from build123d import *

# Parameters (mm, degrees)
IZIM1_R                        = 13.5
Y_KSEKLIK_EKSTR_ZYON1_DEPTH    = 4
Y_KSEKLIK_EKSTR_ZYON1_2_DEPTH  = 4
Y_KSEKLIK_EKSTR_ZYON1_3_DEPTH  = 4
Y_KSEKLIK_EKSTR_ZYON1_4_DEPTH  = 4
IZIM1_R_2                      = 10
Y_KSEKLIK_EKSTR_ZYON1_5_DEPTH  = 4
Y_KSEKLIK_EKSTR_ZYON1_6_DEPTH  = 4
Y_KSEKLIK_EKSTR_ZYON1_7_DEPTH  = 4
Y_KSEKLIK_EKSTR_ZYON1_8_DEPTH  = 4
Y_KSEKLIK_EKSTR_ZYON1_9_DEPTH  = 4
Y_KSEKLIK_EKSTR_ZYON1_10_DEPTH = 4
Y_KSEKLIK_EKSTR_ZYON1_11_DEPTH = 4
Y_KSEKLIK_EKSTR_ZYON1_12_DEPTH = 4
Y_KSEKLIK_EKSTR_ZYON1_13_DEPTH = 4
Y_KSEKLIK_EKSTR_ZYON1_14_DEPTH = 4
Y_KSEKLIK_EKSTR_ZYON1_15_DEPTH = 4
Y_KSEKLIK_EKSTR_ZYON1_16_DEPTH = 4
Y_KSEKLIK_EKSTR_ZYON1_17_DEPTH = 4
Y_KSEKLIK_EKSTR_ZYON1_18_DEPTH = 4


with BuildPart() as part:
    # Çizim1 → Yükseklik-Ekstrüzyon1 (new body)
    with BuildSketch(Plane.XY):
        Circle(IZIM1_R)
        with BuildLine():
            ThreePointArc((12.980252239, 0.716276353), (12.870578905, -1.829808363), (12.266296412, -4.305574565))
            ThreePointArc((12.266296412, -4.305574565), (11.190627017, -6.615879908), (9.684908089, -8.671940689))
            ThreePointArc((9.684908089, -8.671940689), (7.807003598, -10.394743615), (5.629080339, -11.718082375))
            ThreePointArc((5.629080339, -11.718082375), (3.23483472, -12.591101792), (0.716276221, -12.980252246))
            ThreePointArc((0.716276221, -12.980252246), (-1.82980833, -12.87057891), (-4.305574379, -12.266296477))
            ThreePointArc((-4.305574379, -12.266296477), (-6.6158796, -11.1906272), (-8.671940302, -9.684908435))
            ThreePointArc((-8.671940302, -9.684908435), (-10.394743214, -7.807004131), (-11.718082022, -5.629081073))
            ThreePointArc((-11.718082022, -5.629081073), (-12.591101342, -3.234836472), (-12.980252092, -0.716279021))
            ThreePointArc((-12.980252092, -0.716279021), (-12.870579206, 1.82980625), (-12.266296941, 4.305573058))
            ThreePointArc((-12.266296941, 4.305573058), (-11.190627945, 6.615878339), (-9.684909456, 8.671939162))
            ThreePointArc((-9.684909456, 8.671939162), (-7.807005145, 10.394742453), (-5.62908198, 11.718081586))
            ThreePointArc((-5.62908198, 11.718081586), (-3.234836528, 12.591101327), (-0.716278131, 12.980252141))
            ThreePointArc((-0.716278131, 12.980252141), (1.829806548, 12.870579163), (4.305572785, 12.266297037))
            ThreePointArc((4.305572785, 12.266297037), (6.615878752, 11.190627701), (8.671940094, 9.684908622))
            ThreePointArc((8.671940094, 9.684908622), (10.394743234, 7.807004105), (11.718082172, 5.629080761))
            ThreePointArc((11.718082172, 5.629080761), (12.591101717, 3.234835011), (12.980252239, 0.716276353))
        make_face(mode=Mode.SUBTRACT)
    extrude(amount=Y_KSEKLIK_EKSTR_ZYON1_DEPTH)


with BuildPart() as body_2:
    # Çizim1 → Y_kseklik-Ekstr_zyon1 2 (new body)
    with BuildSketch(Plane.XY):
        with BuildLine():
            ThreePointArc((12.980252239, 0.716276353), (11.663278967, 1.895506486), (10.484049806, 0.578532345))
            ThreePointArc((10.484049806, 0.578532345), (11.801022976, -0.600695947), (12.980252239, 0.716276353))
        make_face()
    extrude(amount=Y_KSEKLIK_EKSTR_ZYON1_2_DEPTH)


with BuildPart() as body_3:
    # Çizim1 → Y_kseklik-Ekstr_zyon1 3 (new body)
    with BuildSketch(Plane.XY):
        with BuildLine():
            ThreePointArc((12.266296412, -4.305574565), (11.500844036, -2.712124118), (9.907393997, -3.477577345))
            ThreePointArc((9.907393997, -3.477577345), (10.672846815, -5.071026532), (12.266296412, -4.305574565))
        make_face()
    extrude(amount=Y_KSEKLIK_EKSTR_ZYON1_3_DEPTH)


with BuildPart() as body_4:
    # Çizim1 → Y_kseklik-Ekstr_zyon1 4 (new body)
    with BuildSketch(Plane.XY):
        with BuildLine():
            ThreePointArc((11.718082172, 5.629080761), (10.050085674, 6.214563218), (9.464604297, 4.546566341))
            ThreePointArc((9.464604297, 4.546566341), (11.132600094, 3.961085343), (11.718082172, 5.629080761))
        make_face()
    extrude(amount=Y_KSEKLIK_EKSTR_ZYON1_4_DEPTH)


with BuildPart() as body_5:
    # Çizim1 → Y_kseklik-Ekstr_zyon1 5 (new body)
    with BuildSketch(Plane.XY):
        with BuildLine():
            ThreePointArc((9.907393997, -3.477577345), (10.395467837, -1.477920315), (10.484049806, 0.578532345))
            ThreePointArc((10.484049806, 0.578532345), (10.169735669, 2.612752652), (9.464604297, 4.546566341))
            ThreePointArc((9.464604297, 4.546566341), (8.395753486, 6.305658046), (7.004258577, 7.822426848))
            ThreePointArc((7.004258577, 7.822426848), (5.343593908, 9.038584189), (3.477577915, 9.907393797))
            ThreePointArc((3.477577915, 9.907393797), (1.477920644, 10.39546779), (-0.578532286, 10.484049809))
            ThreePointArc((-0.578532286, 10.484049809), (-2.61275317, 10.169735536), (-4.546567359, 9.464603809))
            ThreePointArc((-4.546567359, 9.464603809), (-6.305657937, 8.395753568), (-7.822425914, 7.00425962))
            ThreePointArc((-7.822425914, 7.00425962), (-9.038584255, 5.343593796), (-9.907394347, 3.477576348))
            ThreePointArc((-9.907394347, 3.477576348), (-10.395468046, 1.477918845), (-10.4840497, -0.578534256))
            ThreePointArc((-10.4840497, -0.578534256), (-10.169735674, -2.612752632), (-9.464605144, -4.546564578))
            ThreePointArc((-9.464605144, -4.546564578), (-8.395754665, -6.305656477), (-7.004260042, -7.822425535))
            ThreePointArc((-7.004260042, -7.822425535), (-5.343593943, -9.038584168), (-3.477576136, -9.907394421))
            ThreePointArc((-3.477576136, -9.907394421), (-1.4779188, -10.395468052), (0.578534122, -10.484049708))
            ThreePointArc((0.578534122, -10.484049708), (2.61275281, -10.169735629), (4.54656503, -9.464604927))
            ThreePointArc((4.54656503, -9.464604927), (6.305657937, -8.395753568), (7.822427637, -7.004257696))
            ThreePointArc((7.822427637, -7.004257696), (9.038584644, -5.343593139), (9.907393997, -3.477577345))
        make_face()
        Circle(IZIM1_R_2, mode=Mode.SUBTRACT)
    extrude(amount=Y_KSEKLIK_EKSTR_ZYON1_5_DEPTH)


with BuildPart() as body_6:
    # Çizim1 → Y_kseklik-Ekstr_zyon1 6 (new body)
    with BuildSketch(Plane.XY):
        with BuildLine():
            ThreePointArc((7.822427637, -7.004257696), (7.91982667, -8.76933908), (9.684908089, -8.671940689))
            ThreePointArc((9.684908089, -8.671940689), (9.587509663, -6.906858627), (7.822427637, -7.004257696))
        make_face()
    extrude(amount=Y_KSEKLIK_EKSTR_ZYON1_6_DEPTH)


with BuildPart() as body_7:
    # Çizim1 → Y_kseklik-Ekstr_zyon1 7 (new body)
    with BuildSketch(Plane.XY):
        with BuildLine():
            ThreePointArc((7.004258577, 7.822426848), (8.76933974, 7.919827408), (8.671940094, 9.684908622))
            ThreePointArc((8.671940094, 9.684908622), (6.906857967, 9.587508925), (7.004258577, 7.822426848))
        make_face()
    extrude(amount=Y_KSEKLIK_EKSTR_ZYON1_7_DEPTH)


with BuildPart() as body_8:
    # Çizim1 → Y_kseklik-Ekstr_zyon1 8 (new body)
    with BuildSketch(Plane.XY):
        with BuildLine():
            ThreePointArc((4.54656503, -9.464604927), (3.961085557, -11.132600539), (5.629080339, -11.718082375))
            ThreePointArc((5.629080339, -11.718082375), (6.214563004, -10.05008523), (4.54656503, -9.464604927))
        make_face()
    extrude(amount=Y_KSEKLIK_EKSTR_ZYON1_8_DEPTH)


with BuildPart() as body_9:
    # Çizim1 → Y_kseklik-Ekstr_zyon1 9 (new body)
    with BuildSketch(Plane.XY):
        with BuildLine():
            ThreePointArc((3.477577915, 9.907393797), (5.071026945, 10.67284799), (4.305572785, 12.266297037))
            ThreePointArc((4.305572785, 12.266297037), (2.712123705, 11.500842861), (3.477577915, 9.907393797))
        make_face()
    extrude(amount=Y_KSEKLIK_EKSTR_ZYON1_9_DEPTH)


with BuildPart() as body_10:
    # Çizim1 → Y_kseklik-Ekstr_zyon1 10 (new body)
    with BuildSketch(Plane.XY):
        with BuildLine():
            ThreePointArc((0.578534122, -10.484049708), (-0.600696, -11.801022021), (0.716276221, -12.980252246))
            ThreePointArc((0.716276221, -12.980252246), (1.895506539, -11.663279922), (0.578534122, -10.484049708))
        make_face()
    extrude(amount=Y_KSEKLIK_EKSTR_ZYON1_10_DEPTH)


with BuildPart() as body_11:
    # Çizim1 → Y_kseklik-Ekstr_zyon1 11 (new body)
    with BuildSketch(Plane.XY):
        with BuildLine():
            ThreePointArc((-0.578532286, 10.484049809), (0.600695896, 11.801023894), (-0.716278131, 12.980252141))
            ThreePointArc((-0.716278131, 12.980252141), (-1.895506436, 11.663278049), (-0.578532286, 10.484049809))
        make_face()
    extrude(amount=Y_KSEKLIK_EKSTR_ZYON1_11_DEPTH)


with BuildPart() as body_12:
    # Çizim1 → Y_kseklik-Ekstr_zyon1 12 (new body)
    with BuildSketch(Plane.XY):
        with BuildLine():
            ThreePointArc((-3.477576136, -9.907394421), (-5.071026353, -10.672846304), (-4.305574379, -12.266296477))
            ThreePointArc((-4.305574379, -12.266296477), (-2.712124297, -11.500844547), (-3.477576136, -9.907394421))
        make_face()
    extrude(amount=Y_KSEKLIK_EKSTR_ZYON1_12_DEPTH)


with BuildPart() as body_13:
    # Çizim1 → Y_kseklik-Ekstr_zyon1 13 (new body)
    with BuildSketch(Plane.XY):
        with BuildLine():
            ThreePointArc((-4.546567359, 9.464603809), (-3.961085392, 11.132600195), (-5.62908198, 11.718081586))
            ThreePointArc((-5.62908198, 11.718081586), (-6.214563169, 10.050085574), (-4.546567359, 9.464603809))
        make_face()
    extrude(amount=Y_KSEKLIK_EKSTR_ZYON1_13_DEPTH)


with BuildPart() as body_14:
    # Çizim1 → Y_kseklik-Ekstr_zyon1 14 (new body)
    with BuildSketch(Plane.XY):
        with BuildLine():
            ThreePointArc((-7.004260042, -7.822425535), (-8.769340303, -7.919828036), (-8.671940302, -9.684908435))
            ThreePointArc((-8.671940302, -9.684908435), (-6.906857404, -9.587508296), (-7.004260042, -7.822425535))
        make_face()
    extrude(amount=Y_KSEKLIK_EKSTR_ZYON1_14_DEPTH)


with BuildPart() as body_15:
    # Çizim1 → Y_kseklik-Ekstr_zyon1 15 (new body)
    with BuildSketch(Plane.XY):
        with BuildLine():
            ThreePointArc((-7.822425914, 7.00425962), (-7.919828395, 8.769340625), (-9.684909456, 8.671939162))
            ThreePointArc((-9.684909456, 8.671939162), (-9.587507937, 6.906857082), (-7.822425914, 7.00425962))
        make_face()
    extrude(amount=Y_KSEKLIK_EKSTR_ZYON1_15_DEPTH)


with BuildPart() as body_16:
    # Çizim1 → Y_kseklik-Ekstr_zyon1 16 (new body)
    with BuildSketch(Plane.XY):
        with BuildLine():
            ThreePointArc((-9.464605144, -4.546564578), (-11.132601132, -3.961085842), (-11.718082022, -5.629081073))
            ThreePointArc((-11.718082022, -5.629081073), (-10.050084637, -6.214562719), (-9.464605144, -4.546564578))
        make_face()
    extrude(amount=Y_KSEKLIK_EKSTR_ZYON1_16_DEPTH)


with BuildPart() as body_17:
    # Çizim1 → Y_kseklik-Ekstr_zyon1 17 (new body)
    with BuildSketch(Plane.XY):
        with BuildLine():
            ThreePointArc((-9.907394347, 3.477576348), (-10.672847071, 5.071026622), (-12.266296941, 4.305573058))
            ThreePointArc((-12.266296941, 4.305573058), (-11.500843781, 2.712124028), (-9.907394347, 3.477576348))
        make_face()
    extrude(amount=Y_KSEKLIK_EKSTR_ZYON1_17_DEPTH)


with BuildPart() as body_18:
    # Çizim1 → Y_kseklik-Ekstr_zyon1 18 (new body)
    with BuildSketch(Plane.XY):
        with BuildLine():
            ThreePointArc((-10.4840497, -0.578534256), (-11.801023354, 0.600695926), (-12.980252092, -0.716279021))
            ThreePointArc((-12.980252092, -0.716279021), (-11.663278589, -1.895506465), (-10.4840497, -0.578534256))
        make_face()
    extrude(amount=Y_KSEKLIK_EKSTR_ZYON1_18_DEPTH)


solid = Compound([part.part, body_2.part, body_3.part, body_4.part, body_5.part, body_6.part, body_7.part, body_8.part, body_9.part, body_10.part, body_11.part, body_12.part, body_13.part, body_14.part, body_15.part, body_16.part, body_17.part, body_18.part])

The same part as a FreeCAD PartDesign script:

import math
import FreeCAD as App
import Part
import Sketcher
Q = App.Units.Quantity

doc = App.newDocument("Part")
body = doc.addObject("PartDesign::Body", "Body")

# Sketch on XY plane
sketch1 = doc.addObject("Sketcher::SketchObject", "Sketch")
body.addObject(sketch1)
sketch1.AttachmentSupport = (doc.XY_Plane, [""])
sketch1.MapMode = "FlatFace"
sketch1.addGeometry(Part.Circle(App.Vector(0, 0, 0), App.Vector(0, 0, 1), 14), False)
sketch1.addGeometry(Part.ArcOfCircle(Part.Circle(App.Vector(0, 0, 0), App.Vector(0, 0, 1), 13), math.radians(3), math.radians(26)), False)
sketch1.addGeometry(Part.ArcOfCircle(Part.Circle(App.Vector(0, 0, 0), App.Vector(0, 0, 1), 13), math.radians(-19), math.radians(3)), False)
sketch1.addGeometry(Part.ArcOfCircle(Part.Circle(App.Vector(0, 0, 0), App.Vector(0, 0, 1), 13), math.radians(-42), math.radians(-19)), False)
sketch1.addGeometry(Part.ArcOfCircle(Part.Circle(App.Vector(0, 0, 0), App.Vector(0, 0, 1), 13), math.radians(-64), math.radians(-42)), False)
sketch1.addGeometry(Part.ArcOfCircle(Part.Circle(App.Vector(0, 0, 0), App.Vector(0, 0, 1), 13), math.radians(-87), math.radians(-64)), False)
sketch1.addGeometry(Part.ArcOfCircle(Part.Circle(App.Vector(0, 0, 0), App.Vector(0, 0, 1), 13), math.radians(-109), math.radians(-87)), False)
sketch1.addGeometry(Part.ArcOfCircle(Part.Circle(App.Vector(0, 0, 0), App.Vector(0, 0, 1), 13), math.radians(-132), math.radians(-109)), False)
sketch1.addGeometry(Part.ArcOfCircle(Part.Circle(App.Vector(0, 0, 0), App.Vector(0, 0, 1), 13), math.radians(-154), math.radians(-132)), False)
sketch1.addGeometry(Part.ArcOfCircle(Part.Circle(App.Vector(0, 0, 0), App.Vector(0, 0, 1), 13), math.radians(-177), math.radians(-154)), False)
sketch1.addGeometry(Part.ArcOfCircle(Part.Circle(App.Vector(0, 0, 0), App.Vector(0, 0, 1), 13), math.radians(161), math.radians(183)), False)
sketch1.addGeometry(Part.ArcOfCircle(Part.Circle(App.Vector(0, 0, 0), App.Vector(0, 0, 1), 13), math.radians(138), math.radians(161)), False)
sketch1.addGeometry(Part.ArcOfCircle(Part.Circle(App.Vector(0, 0, 0), App.Vector(0, 0, 1), 13), math.radians(116), math.radians(138)), False)
sketch1.addGeometry(Part.ArcOfCircle(Part.Circle(App.Vector(0, 0, 0), App.Vector(0, 0, 1), 13), math.radians(93), math.radians(116)), False)
sketch1.addGeometry(Part.ArcOfCircle(Part.Circle(App.Vector(0, 0, 0), App.Vector(0, 0, 1), 13), math.radians(71), math.radians(93)), False)
sketch1.addGeometry(Part.ArcOfCircle(Part.Circle(App.Vector(0, 0, 0), App.Vector(0, 0, 1), 13), math.radians(48), math.radians(71)), False)
sketch1.addGeometry(Part.ArcOfCircle(Part.Circle(App.Vector(0, 0, 0), App.Vector(0, 0, 1), 13), math.radians(26), math.radians(48)), False)
sketch1.addConstraint(Sketcher.Constraint("Tangent", 1, 1, 2, 2))
sketch1.addConstraint(Sketcher.Constraint("Tangent", 2, 1, 3, 2))
sketch1.addConstraint(Sketcher.Constraint("Tangent", 3, 1, 4, 2))
sketch1.addConstraint(Sketcher.Constraint("Tangent", 4, 1, 5, 2))
sketch1.addConstraint(Sketcher.Constraint("Tangent", 5, 1, 6, 2))
sketch1.addConstraint(Sketcher.Constraint("Tangent", 6, 1, 7, 2))
sketch1.addConstraint(Sketcher.Constraint("Tangent", 7, 1, 8, 2))
sketch1.addConstraint(Sketcher.Constraint("Tangent", 8, 1, 9, 2))
sketch1.addConstraint(Sketcher.Constraint("Tangent", 9, 1, 10, 2))
sketch1.addConstraint(Sketcher.Constraint("Tangent", 10, 1, 11, 2))
sketch1.addConstraint(Sketcher.Constraint("Tangent", 11, 1, 12, 2))
sketch1.addConstraint(Sketcher.Constraint("Tangent", 12, 1, 13, 2))
sketch1.addConstraint(Sketcher.Constraint("Tangent", 13, 1, 14, 2))
sketch1.addConstraint(Sketcher.Constraint("Tangent", 14, 1, 15, 2))
sketch1.addConstraint(Sketcher.Constraint("Tangent", 15, 1, 16, 2))
sketch1.addConstraint(Sketcher.Constraint("Tangent", 16, 1, 1, 2))
sketch1.addConstraint(Sketcher.Constraint("Coincident", 0, 3, -1, 1))
sketch1.addConstraint(Sketcher.Constraint("Coincident", 1, 3, -1, 1))
sketch1.addConstraint(Sketcher.Constraint("Coincident", 3, 3, -1, 1))
sketch1.addConstraint(Sketcher.Constraint("Coincident", 5, 3, -1, 1))
sketch1.addConstraint(Sketcher.Constraint("Coincident", 7, 3, -1, 1))
sketch1.addConstraint(Sketcher.Constraint("Coincident", 9, 3, -1, 1))
sketch1.addConstraint(Sketcher.Constraint("Coincident", 11, 3, -1, 1))
sketch1.addConstraint(Sketcher.Constraint("Coincident", 13, 3, -1, 1))
sketch1.addConstraint(Sketcher.Constraint("Equal", 13, 14))
sketch1.addConstraint(Sketcher.Constraint("Diameter", 0, Q("27 mm")))
sketch1.addConstraint(Sketcher.Constraint("Radius", 1, Q("13 mm")))
sketch1.addConstraint(Sketcher.Constraint("DistanceX", -1, 1, 3, 1, Q("9.684908 mm")))
sketch1.addConstraint(Sketcher.Constraint("DistanceX", -1, 1, 4, 1, Q("5.62908 mm")))
sketch1.addConstraint(Sketcher.Constraint("DistanceX", 7, 1, -1, 1, Q("8.67194 mm")))
sketch1.addConstraint(Sketcher.Constraint("DistanceY", 8, 1, -1, 1, Q("5.629081 mm")))
sketch1.addConstraint(Sketcher.Constraint("DistanceY", 9, 1, -1, 1, Q("0.716279 mm")))
sketch1.addConstraint(Sketcher.Constraint("DistanceX", 11, 1, -1, 1, Q("9.684909 mm")))
sketch1.addConstraint(Sketcher.Constraint("DistanceX", 12, 1, -1, 1, Q("5.629082 mm")))
sketch1.addConstraint(Sketcher.Constraint("DistanceX", 13, 1, -1, 1, Q("0.716278 mm")))
sketch1.addConstraint(Sketcher.Constraint("DistanceX", -1, 1, 15, 1, Q("8.67194 mm")))
sketch1.addConstraint(Sketcher.Constraint("DistanceY", -1, 1, 16, 1, Q("5.629081 mm")))
sketch1.addConstraint(Sketcher.Constraint("DistanceY", 2, 1, 1, 1, Q("5.021851 mm")))
sketch1.addConstraint(Sketcher.Constraint("DistanceX", 3, 1, 2, 1, Q("2.581388 mm")))
sketch1.addConstraint(Sketcher.Constraint("DistanceY", 5, 1, 4, 1, Q("1.26217 mm")))
sketch1.addConstraint(Sketcher.Constraint("DistanceX", 6, 1, 5, 1, Q("5.021851 mm")))
sketch1.addConstraint(Sketcher.Constraint("DistanceY", 10, 1, 12, 1, Q("7.412509 mm")))
sketch1.addConstraint(Sketcher.Constraint("DistanceX", 13, 1, 14, 1, Q("5.021851 mm")))
pad1 = doc.addObject("PartDesign::Pad", "Pad")
body.addObject(pad1)
pad1.Profile = sketch1
pad1.Length = 4
body2 = doc.addObject("PartDesign::Body", "Body001")

# Sketch on XY plane
sketch2 = doc.addObject("Sketcher::SketchObject", "Sketch001")
body2.addObject(sketch2)
sketch2.AttachmentSupport = (doc.getObject("XY_Plane001"), [""])
sketch2.MapMode = "FlatFace"
sketch2.addGeometry(Part.ArcOfCircle(Part.Circle(App.Vector(11.7, 0.6, 0), App.Vector(0, 0, 1), 1.2), math.radians(3), math.radians(183)), False)
sketch2.addGeometry(Part.ArcOfCircle(Part.Circle(App.Vector(11.7, 0.6, 0), App.Vector(0, 0, 1), 1.2), math.radians(-177), math.radians(3)), False)
sketch2.addConstraint(Sketcher.Constraint("Tangent", 0, 1, 1, 2))
sketch2.addConstraint(Sketcher.Constraint("Coincident", 1, 1, 0, 2))
sketch2.addConstraint(Sketcher.Constraint("Radius", 0, Q("1.25 mm")))
sketch2.addConstraint(Sketcher.Constraint("DistanceX", 0, 3, 0, 1, Q("1.248101 mm")))
sketch2.addConstraint(Sketcher.Constraint("DistanceX", 1, 1, 1, 3, Q("1.248101 mm")))
sketch2.addConstraint(Sketcher.Constraint("DistanceX", -1, 1, 0, 3, Q("11.732151 mm")))
sketch2.addConstraint(Sketcher.Constraint("DistanceY", -1, 1, 0, 3, Q("0.647405 mm")))
pad2 = doc.addObject("PartDesign::Pad", "Pad001")
body2.addObject(pad2)
pad2.Profile = sketch2
pad2.Length = 4
body3 = doc.addObject("PartDesign::Body", "Body002")

# Sketch on XY plane
sketch3 = doc.addObject("Sketcher::SketchObject", "Sketch002")
body3.addObject(sketch3)
sketch3.AttachmentSupport = (doc.getObject("XY_Plane002"), [""])
sketch3.MapMode = "FlatFace"
sketch3.addGeometry(Part.ArcOfCircle(Part.Circle(App.Vector(11.1, -3.9, 0), App.Vector(0, 0, 1), 1.2), math.radians(-19), math.radians(161)), False)
sketch3.addGeometry(Part.ArcOfCircle(Part.Circle(App.Vector(11.1, -3.9, 0), App.Vector(0, 0, 1), 1.2), math.radians(161), math.radians(341)), False)
sketch3.addConstraint(Sketcher.Constraint("Tangent", 0, 1, 1, 2))
sketch3.addConstraint(Sketcher.Constraint("Coincident", 1, 1, 0, 2))
sketch3.addConstraint(Sketcher.Constraint("Radius", 0, Q("1.25 mm")))
sketch3.addConstraint(Sketcher.Constraint("DistanceY", 0, 1, 0, 3, Q("0.413999 mm")))
sketch3.addConstraint(Sketcher.Constraint("DistanceX", 1, 1, 0, 3, Q("1.179451 mm")))
sketch3.addConstraint(Sketcher.Constraint("DistanceX", -1, 1, 0, 3, Q("11.086845 mm")))
sketch3.addConstraint(Sketcher.Constraint("DistanceY", 0, 3, -1, 1, Q("3.891575 mm")))
pad3 = doc.addObject("PartDesign::Pad", "Pad002")
body3.addObject(pad3)
pad3.Profile = sketch3
pad3.Length = 4
body4 = doc.addObject("PartDesign::Body", "Body003")

# Sketch on XY plane
sketch4 = doc.addObject("Sketcher::SketchObject", "Sketch003")
body4.addObject(sketch4)
sketch4.AttachmentSupport = (doc.getObject("XY_Plane003"), [""])
sketch4.MapMode = "FlatFace"
sketch4.addGeometry(Part.Circle(App.Vector(10.6, 5.1, 0), App.Vector(0, 0, 1), 1.2), False)
sketch4.addConstraint(Sketcher.Constraint("Diameter", 0, Q("2.5 mm")))
sketch4.addConstraint(Sketcher.Constraint("DistanceX", -1, 1, 0, 3, Q("10.591343 mm")))
sketch4.addConstraint(Sketcher.Constraint("DistanceY", -1, 1, 0, 3, Q("5.087824 mm")))
pad4 = doc.addObject("PartDesign::Pad", "Pad003")
body4.addObject(pad4)
pad4.Profile = sketch4
pad4.Length = 4
body5 = doc.addObject("PartDesign::Body", "Body004")

# Sketch on XY plane
sketch5 = doc.addObject("Sketcher::SketchObject", "Sketch004")
body5.addObject(sketch5)
sketch5.AttachmentSupport = (doc.getObject("XY_Plane004"), [""])
sketch5.MapMode = "FlatFace"
sketch5.addGeometry(Part.ArcOfCircle(Part.Circle(App.Vector(0, 0, 0), App.Vector(0, 0, 1), 10.5), math.radians(-19), math.radians(3)), False)
sketch5.addGeometry(Part.ArcOfCircle(Part.Circle(App.Vector(0, 0, 0), App.Vector(0, 0, 1), 10.5), math.radians(3), math.radians(26)), False)
sketch5.addGeometry(Part.ArcOfCircle(Part.Circle(App.Vector(0, 0, 0), App.Vector(0, 0, 1), 10.5), math.radians(26), math.radians(48)), False)
sketch5.addGeometry(Part.ArcOfCircle(Part.Circle(App.Vector(0, 0, 0), App.Vector(0, 0, 1), 10.5), math.radians(48), math.radians(71)), False)
sketch5.addGeometry(Part.ArcOfCircle(Part.Circle(App.Vector(0, 0, 0), App.Vector(0, 0, 1), 10.5), math.radians(71), math.radians(93)), False)
sketch5.addGeometry(Part.ArcOfCircle(Part.Circle(App.Vector(0, 0, 0), App.Vector(0, 0, 1), 10.5), math.radians(93), math.radians(116)), False)
sketch5.addGeometry(Part.ArcOfCircle(Part.Circle(App.Vector(0, 0, 0), App.Vector(0, 0, 1), 10.5), math.radians(116), math.radians(138)), False)
sketch5.addGeometry(Part.ArcOfCircle(Part.Circle(App.Vector(0, 0, 0), App.Vector(0, 0, 1), 10.5), math.radians(138), math.radians(161)), False)
sketch5.addGeometry(Part.ArcOfCircle(Part.Circle(App.Vector(0, 0, 0), App.Vector(0, 0, 1), 10.5), math.radians(161), math.radians(183)), False)
sketch5.addGeometry(Part.ArcOfCircle(Part.Circle(App.Vector(0, 0, 0), App.Vector(0, 0, 1), 10.5), math.radians(-177), math.radians(-154)), False)
sketch5.addGeometry(Part.ArcOfCircle(Part.Circle(App.Vector(0, 0, 0), App.Vector(0, 0, 1), 10.5), math.radians(-154), math.radians(-132)), False)
sketch5.addGeometry(Part.ArcOfCircle(Part.Circle(App.Vector(0, 0, 0), App.Vector(0, 0, 1), 10.5), math.radians(-132), math.radians(-109)), False)
sketch5.addGeometry(Part.ArcOfCircle(Part.Circle(App.Vector(0, 0, 0), App.Vector(0, 0, 1), 10.5), math.radians(-109), math.radians(-87)), False)
sketch5.addGeometry(Part.ArcOfCircle(Part.Circle(App.Vector(0, 0, 0), App.Vector(0, 0, 1), 10.5), math.radians(-87), math.radians(-64)), False)
sketch5.addGeometry(Part.ArcOfCircle(Part.Circle(App.Vector(0, 0, 0), App.Vector(0, 0, 1), 10.5), math.radians(-64), math.radians(-42)), False)
sketch5.addGeometry(Part.ArcOfCircle(Part.Circle(App.Vector(0, 0, 0), App.Vector(0, 0, 1), 10.5), math.radians(-42), math.radians(-19)), False)
sketch5.addGeometry(Part.Circle(App.Vector(0, 0, 0), App.Vector(0, 0, 1), 10), False)
sketch5.addConstraint(Sketcher.Constraint("Tangent", 0, 2, 1, 1))
sketch5.addConstraint(Sketcher.Constraint("Tangent", 1, 2, 2, 1))
sketch5.addConstraint(Sketcher.Constraint("Tangent", 2, 2, 3, 1))
sketch5.addConstraint(Sketcher.Constraint("Tangent", 3, 2, 4, 1))
sketch5.addConstraint(Sketcher.Constraint("Tangent", 4, 2, 5, 1))
sketch5.addConstraint(Sketcher.Constraint("Tangent", 5, 2, 6, 1))
sketch5.addConstraint(Sketcher.Constraint("Tangent", 6, 2, 7, 1))
sketch5.addConstraint(Sketcher.Constraint("Tangent", 7, 2, 8, 1))
sketch5.addConstraint(Sketcher.Constraint("Tangent", 8, 2, 9, 1))
sketch5.addConstraint(Sketcher.Constraint("Tangent", 9, 2, 10, 1))
sketch5.addConstraint(Sketcher.Constraint("Tangent", 10, 2, 11, 1))
sketch5.addConstraint(Sketcher.Constraint("Tangent", 11, 2, 12, 1))
sketch5.addConstraint(Sketcher.Constraint("Tangent", 12, 2, 13, 1))
sketch5.addConstraint(Sketcher.Constraint("Tangent", 13, 2, 14, 1))
sketch5.addConstraint(Sketcher.Constraint("Tangent", 14, 2, 15, 1))
sketch5.addConstraint(Sketcher.Constraint("Tangent", 15, 2, 0, 1))
sketch5.addConstraint(Sketcher.Constraint("Coincident", 0, 3, -1, 1))
sketch5.addConstraint(Sketcher.Constraint("Coincident", 2, 3, -1, 1))
sketch5.addConstraint(Sketcher.Constraint("Coincident", 4, 3, -1, 1))
sketch5.addConstraint(Sketcher.Constraint("Coincident", 6, 3, -1, 1))
sketch5.addConstraint(Sketcher.Constraint("Coincident", 8, 3, -1, 1))
sketch5.addConstraint(Sketcher.Constraint("Coincident", 10, 3, -1, 1))
sketch5.addConstraint(Sketcher.Constraint("Coincident", 12, 3, -1, 1))
sketch5.addConstraint(Sketcher.Constraint("Coincident", 16, 3, -1, 1))
sketch5.addConstraint(Sketcher.Constraint("Equal", 12, 13))
sketch5.addConstraint(Sketcher.Constraint("Diameter", 16, Q("20 mm")))
sketch5.addConstraint(Sketcher.Constraint("Radius", 0, Q("10.5 mm")))
sketch5.addConstraint(Sketcher.Constraint("DistanceX", -1, 1, 0, 2, Q("10.48405 mm")))
sketch5.addConstraint(Sketcher.Constraint("DistanceX", -1, 1, 2, 2, Q("7.004259 mm")))
sketch5.addConstraint(Sketcher.Constraint("DistanceY", -1, 1, 4, 2, Q("10.48405 mm")))
sketch5.addConstraint(Sketcher.Constraint("DistanceY", -1, 1, 6, 2, Q("7.00426 mm")))
sketch5.addConstraint(Sketcher.Constraint("DistanceX", 8, 2, -1, 1, Q("10.48405 mm")))
sketch5.addConstraint(Sketcher.Constraint("DistanceX", 10, 2, -1, 1, Q("7.00426 mm")))
sketch5.addConstraint(Sketcher.Constraint("DistanceY", 12, 2, -1, 1, Q("10.48405 mm")))
sketch5.addConstraint(Sketcher.Constraint("DistanceY", 1, 2, 2, 2, Q("3.275861 mm")))
sketch5.addConstraint(Sketcher.Constraint("DistanceX", 3, 2, 2, 2, Q("3.526681 mm")))
sketch5.addConstraint(Sketcher.Constraint("DistanceY", 5, 2, 3, 2, Q("0.44279 mm")))
sketch5.addConstraint(Sketcher.Constraint("DistanceX", 7, 2, 6, 2, Q("2.084968 mm")))
sketch5.addConstraint(Sketcher.Constraint("DistanceY", 9, 2, 8, 2, Q("3.96803 mm")))
sketch5.addConstraint(Sketcher.Constraint("DistanceY", 11, 2, 10, 2, Q("2.084969 mm")))
sketch5.addConstraint(Sketcher.Constraint("DistanceX", 12, 2, 13, 2, Q("3.968031 mm")))
sketch5.addConstraint(Sketcher.Constraint("DistanceY", 14, 2, 0, 2, Q("7.58279 mm")))
sketch5.addConstraint(Sketcher.Constraint("DistanceY", 15, 2, 0, 2, Q("4.05611 mm")))
pad5 = doc.addObject("PartDesign::Pad", "Pad004")
body5.addObject(pad5)
pad5.Profile = sketch5
pad5.Length = 4
body6 = doc.addObject("PartDesign::Body", "Body005")

# Sketch on XY plane
sketch6 = doc.addObject("Sketcher::SketchObject", "Sketch005")
body6.addObject(sketch6)
sketch6.AttachmentSupport = (doc.getObject("XY_Plane005"), [""])
sketch6.MapMode = "FlatFace"
sketch6.addGeometry(Part.ArcOfCircle(Part.Circle(App.Vector(8.8, -7.8, 0), App.Vector(0, 0, 1), 1.2), math.radians(138), math.radians(318)), False)
sketch6.addGeometry(Part.ArcOfCircle(Part.Circle(App.Vector(8.8, -7.8, 0), App.Vector(0, 0, 1), 1.2), math.radians(-42), math.radians(138)), False)
sketch6.addConstraint(Sketcher.Constraint("Tangent", 0, 1, 1, 2))
sketch6.addConstraint(Sketcher.Constraint("Coincident", 1, 1, 0, 2))
sketch6.addConstraint(Sketcher.Constraint("Radius", 0, Q("1.25 mm")))
sketch6.addConstraint(Sketcher.Constraint("DistanceY", 0, 3, -1, 1, Q("7.838099 mm")))
sketch6.addConstraint(Sketcher.Constraint("DistanceX", -1, 1, 0, 3, Q("8.753668 mm")))
sketch6.addConstraint(Sketcher.Constraint("DistanceX", -1, 1, 1, 1, Q("9.684908 mm")))
sketch6.addConstraint(Sketcher.Constraint("DistanceX", 0, 1, 0, 3, Q("0.931241 mm")))
pad6 = doc.addObject("PartDesign::Pad", "Pad005")
body6.addObject(pad6)
pad6.Profile = sketch6
pad6.Length = 4
body7 = doc.addObject("PartDesign::Body", "Body006")

# Sketch on XY plane
sketch7 = doc.addObject("Sketcher::SketchObject", "Sketch006")
body7.addObject(sketch7)
sketch7.AttachmentSupport = (doc.getObject("XY_Plane006"), [""])
sketch7.MapMode = "FlatFace"
sketch7.addGeometry(Part.ArcOfCircle(Part.Circle(App.Vector(7.8, 8.8, 0), App.Vector(0, 0, 1), 1.2), math.radians(-132), math.radians(48)), False)
sketch7.addGeometry(Part.ArcOfCircle(Part.Circle(App.Vector(7.8, 8.8, 0), App.Vector(0, 0, 1), 1.2), math.radians(48), math.radians(228)), False)
sketch7.addConstraint(Sketcher.Constraint("Tangent", 0, 1, 1, 2))
sketch7.addConstraint(Sketcher.Constraint("Coincident", 1, 1, 0, 2))
sketch7.addConstraint(Sketcher.Constraint("Radius", 0, Q("1.25 mm")))
sketch7.addConstraint(Sketcher.Constraint("DistanceX", -1, 1, 0, 3, Q("7.838099 mm")))
sketch7.addConstraint(Sketcher.Constraint("DistanceY", -1, 1, 0, 3, Q("8.753668 mm")))
sketch7.addConstraint(Sketcher.Constraint("DistanceX", -1, 1, 0, 1, Q("7.004259 mm")))
sketch7.addConstraint(Sketcher.Constraint("DistanceX", -1, 1, 1, 1, Q("8.67194 mm")))
pad7 = doc.addObject("PartDesign::Pad", "Pad006")
body7.addObject(pad7)
pad7.Profile = sketch7
pad7.Length = 4
body8 = doc.addObject("PartDesign::Body", "Body007")

# Sketch on XY plane
sketch8 = doc.addObject("Sketcher::SketchObject", "Sketch007")
body8.addObject(sketch8)
sketch8.AttachmentSupport = (doc.getObject("XY_Plane007"), [""])
sketch8.MapMode = "FlatFace"
sketch8.addGeometry(Part.ArcOfCircle(Part.Circle(App.Vector(5.1, -10.6, 0), App.Vector(0, 0, 1), 1.2), math.radians(116), math.radians(296)), False)
sketch8.addGeometry(Part.ArcOfCircle(Part.Circle(App.Vector(5.1, -10.6, 0), App.Vector(0, 0, 1), 1.2), math.radians(-64), math.radians(116)), False)
sketch8.addConstraint(Sketcher.Constraint("Tangent", 0, 1, 1, 2))
sketch8.addConstraint(Sketcher.Constraint("Coincident", 1, 1, 0, 2))
sketch8.addConstraint(Sketcher.Constraint("Radius", 0, Q("1.25 mm")))
sketch8.addConstraint(Sketcher.Constraint("DistanceX", -1, 1, 1, 1, Q("5.62908 mm")))
sketch8.addConstraint(Sketcher.Constraint("DistanceX", 0, 1, 0, 3, Q("0.541259 mm")))
sketch8.addConstraint(Sketcher.Constraint("DistanceY", 1, 1, 1, 3, Q("1.126739 mm")))
sketch8.addConstraint(Sketcher.Constraint("DistanceY", 0, 3, -1, 1, Q("10.591343 mm")))
pad8 = doc.addObject("PartDesign::Pad", "Pad007")
body8.addObject(pad8)
pad8.Profile = sketch8
pad8.Length = 4
body9 = doc.addObject("PartDesign::Body", "Body008")

# Sketch on XY plane
sketch9 = doc.addObject("Sketcher::SketchObject", "Sketch008")
body9.addObject(sketch9)
sketch9.AttachmentSupport = (doc.getObject("XY_Plane008"), [""])
sketch9.MapMode = "FlatFace"
sketch9.addGeometry(Part.ArcOfCircle(Part.Circle(App.Vector(3.9, 11.1, 0), App.Vector(0, 0, 1), 1.2), math.radians(-109), math.radians(71)), False)
sketch9.addGeometry(Part.ArcOfCircle(Part.Circle(App.Vector(3.9, 11.1, 0), App.Vector(0, 0, 1), 1.2), math.radians(71), math.radians(251)), False)
sketch9.addConstraint(Sketcher.Constraint("Tangent", 0, 1, 1, 2))
sketch9.addConstraint(Sketcher.Constraint("Coincident", 1, 1, 0, 2))
sketch9.addConstraint(Sketcher.Constraint("Radius", 0, Q("1.25 mm")))
sketch9.addConstraint(Sketcher.Constraint("DistanceY", 0, 1, 0, 3, Q("1.179452 mm")))
sketch9.addConstraint(Sketcher.Constraint("DistanceY", 0, 3, 1, 1, Q("1.179452 mm")))
sketch9.addConstraint(Sketcher.Constraint("DistanceX", -1, 1, 0, 3, Q("3.891575 mm")))
sketch9.addConstraint(Sketcher.Constraint("DistanceY", -1, 1, 0, 3, Q("11.086845 mm")))
pad9 = doc.addObject("PartDesign::Pad", "Pad008")
body9.addObject(pad9)
pad9.Profile = sketch9
pad9.Length = 4
body10 = doc.addObject("PartDesign::Body", "Body009")

# Sketch on XY plane
sketch10 = doc.addObject("Sketcher::SketchObject", "Sketch009")
body10.addObject(sketch10)
sketch10.AttachmentSupport = (doc.getObject("XY_Plane009"), [""])
sketch10.MapMode = "FlatFace"
sketch10.addGeometry(Part.ArcOfCircle(Part.Circle(App.Vector(0.6, -11.7, 0), App.Vector(0, 0, 1), 1.2), math.radians(93), math.radians(273)), False)
sketch10.addGeometry(Part.ArcOfCircle(Part.Circle(App.Vector(0.6, -11.7, 0), App.Vector(0, 0, 1), 1.2), math.radians(-87), math.radians(93)), False)
sketch10.addConstraint(Sketcher.Constraint("Tangent", 0, 1, 1, 2))
sketch10.addConstraint(Sketcher.Constraint("Coincident", 1, 1, 0, 2))
sketch10.addConstraint(Sketcher.Constraint("Radius", 0, Q("1.25 mm")))
sketch10.addConstraint(Sketcher.Constraint("DistanceY", 0, 3, 0, 1, Q("1.248101 mm")))
sketch10.addConstraint(Sketcher.Constraint("DistanceY", 1, 1, 1, 3, Q("1.248101 mm")))
sketch10.addConstraint(Sketcher.Constraint("DistanceY", 0, 3, -1, 1, Q("11.732151 mm")))
sketch10.addConstraint(Sketcher.Constraint("DistanceX", -1, 1, 0, 3, Q("0.647405 mm")))
pad10 = doc.addObject("PartDesign::Pad", "Pad009")
body10.addObject(pad10)
pad10.Profile = sketch10
pad10.Length = 4
body11 = doc.addObject("PartDesign::Body", "Body010")

# Sketch on XY plane
sketch11 = doc.addObject("Sketcher::SketchObject", "Sketch010")
body11.addObject(sketch11)
sketch11.AttachmentSupport = (doc.getObject("XY_Plane010"), [""])
sketch11.MapMode = "FlatFace"
sketch11.addGeometry(Part.Circle(App.Vector(-0.6, 11.7, 0), App.Vector(0, 0, 1), 1.2), False)
sketch11.addConstraint(Sketcher.Constraint("Diameter", 0, Q("2.5 mm")))
sketch11.addConstraint(Sketcher.Constraint("DistanceY", -1, 1, 0, 3, Q("11.732151 mm")))
sketch11.addConstraint(Sketcher.Constraint("DistanceX", 0, 3, -1, 1, Q("0.647405 mm")))
pad11 = doc.addObject("PartDesign::Pad", "Pad010")
body11.addObject(pad11)
pad11.Profile = sketch11
pad11.Length = 4
body12 = doc.addObject("PartDesign::Body", "Body011")

# Sketch on XY plane
sketch12 = doc.addObject("Sketcher::SketchObject", "Sketch011")
body12.addObject(sketch12)
sketch12.AttachmentSupport = (doc.getObject("XY_Plane011"), [""])
sketch12.MapMode = "FlatFace"
sketch12.addGeometry(Part.Circle(App.Vector(-3.9, -11.1, 0), App.Vector(0, 0, 1), 1.2), False)
sketch12.addConstraint(Sketcher.Constraint("Diameter", 0, Q("2.5 mm")))
sketch12.addConstraint(Sketcher.Constraint("DistanceX", 0, 3, -1, 1, Q("3.891575 mm")))
sketch12.addConstraint(Sketcher.Constraint("DistanceY", 0, 3, -1, 1, Q("11.086845 mm")))
pad12 = doc.addObject("PartDesign::Pad", "Pad011")
body12.addObject(pad12)
pad12.Profile = sketch12
pad12.Length = 4
body13 = doc.addObject("PartDesign::Body", "Body012")

# Sketch on XY plane
sketch13 = doc.addObject("Sketcher::SketchObject", "Sketch012")
body13.addObject(sketch13)
sketch13.AttachmentSupport = (doc.getObject("XY_Plane012"), [""])
sketch13.MapMode = "FlatFace"
sketch13.addGeometry(Part.Circle(App.Vector(-5.1, 10.6, 0), App.Vector(0, 0, 1), 1.2), False)
sketch13.addConstraint(Sketcher.Constraint("Diameter", 0, Q("2.5 mm")))
sketch13.addConstraint(Sketcher.Constraint("DistanceX", 0, 3, -1, 1, Q("5.087824 mm")))
sketch13.addConstraint(Sketcher.Constraint("DistanceY", -1, 1, 0, 3, Q("10.591343 mm")))
pad13 = doc.addObject("PartDesign::Pad", "Pad012")
body13.addObject(pad13)
pad13.Profile = sketch13
pad13.Length = 4
body14 = doc.addObject("PartDesign::Body", "Body013")

# Sketch on XY plane
sketch14 = doc.addObject("Sketcher::SketchObject", "Sketch013")
body14.addObject(sketch14)
sketch14.AttachmentSupport = (doc.getObject("XY_Plane013"), [""])
sketch14.MapMode = "FlatFace"
sketch14.addGeometry(Part.ArcOfCircle(Part.Circle(App.Vector(-7.8, -8.8, 0), App.Vector(0, 0, 1), 1.2), math.radians(48), math.radians(228)), False)
sketch14.addGeometry(Part.ArcOfCircle(Part.Circle(App.Vector(-7.8, -8.8, 0), App.Vector(0, 0, 1), 1.2), math.radians(-132), math.radians(48)), False)
sketch14.addConstraint(Sketcher.Constraint("Tangent", 0, 1, 1, 2))
sketch14.addConstraint(Sketcher.Constraint("Coincident", 1, 1, 0, 2))
sketch14.addConstraint(Sketcher.Constraint("Radius", 0, Q("1.25 mm")))
sketch14.addConstraint(Sketcher.Constraint("DistanceX", 0, 3, -1, 1, Q("7.838099 mm")))
sketch14.addConstraint(Sketcher.Constraint("DistanceY", 0, 3, -1, 1, Q("8.753668 mm")))
sketch14.addConstraint(Sketcher.Constraint("DistanceX", 0, 1, -1, 1, Q("7.00426 mm")))
sketch14.addConstraint(Sketcher.Constraint("DistanceX", 1, 1, -1, 1, Q("8.67194 mm")))
pad14 = doc.addObject("PartDesign::Pad", "Pad013")
body14.addObject(pad14)
pad14.Profile = sketch14
pad14.Length = 4
body15 = doc.addObject("PartDesign::Body", "Body014")

# Sketch on XY plane
sketch15 = doc.addObject("Sketcher::SketchObject", "Sketch014")
body15.addObject(sketch15)
sketch15.AttachmentSupport = (doc.getObject("XY_Plane014"), [""])
sketch15.MapMode = "FlatFace"
sketch15.addGeometry(Part.ArcOfCircle(Part.Circle(App.Vector(-8.8, 7.8, 0), App.Vector(0, 0, 1), 1.2), math.radians(-42), math.radians(138)), False)
sketch15.addGeometry(Part.ArcOfCircle(Part.Circle(App.Vector(-8.8, 7.8, 0), App.Vector(0, 0, 1), 1.2), math.radians(138), math.radians(318)), False)
sketch15.addConstraint(Sketcher.Constraint("Tangent", 0, 1, 1, 2))
sketch15.addConstraint(Sketcher.Constraint("Coincident", 1, 1, 0, 2))
sketch15.addConstraint(Sketcher.Constraint("Radius", 0, Q("1.25 mm")))
sketch15.addConstraint(Sketcher.Constraint("DistanceY", -1, 1, 0, 3, Q("7.838099 mm")))
sketch15.addConstraint(Sketcher.Constraint("DistanceX", 0, 3, -1, 1, Q("8.753668 mm")))
sketch15.addConstraint(Sketcher.Constraint("DistanceY", -1, 1, 0, 1, Q("7.00426 mm")))
sketch15.addConstraint(Sketcher.Constraint("DistanceX", 1, 1, -1, 1, Q("9.684909 mm")))
pad15 = doc.addObject("PartDesign::Pad", "Pad014")
body15.addObject(pad15)
pad15.Profile = sketch15
pad15.Length = 4
body16 = doc.addObject("PartDesign::Body", "Body015")

# Sketch on XY plane
sketch16 = doc.addObject("Sketcher::SketchObject", "Sketch015")
body16.addObject(sketch16)
sketch16.AttachmentSupport = (doc.getObject("XY_Plane015"), [""])
sketch16.MapMode = "FlatFace"
sketch16.addGeometry(Part.ArcOfCircle(Part.Circle(App.Vector(-10.6, -5.1, 0), App.Vector(0, 0, 1), 1.2), math.radians(26), math.radians(206)), False)
sketch16.addGeometry(Part.ArcOfCircle(Part.Circle(App.Vector(-10.6, -5.1, 0), App.Vector(0, 0, 1), 1.2), math.radians(-154), math.radians(26)), False)
sketch16.addConstraint(Sketcher.Constraint("Tangent", 0, 1, 1, 2))
sketch16.addConstraint(Sketcher.Constraint("Coincident", 1, 1, 0, 2))
sketch16.addConstraint(Sketcher.Constraint("Radius", 0, Q("1.25 mm")))
sketch16.addConstraint(Sketcher.Constraint("DistanceY", 1, 1, -1, 1, Q("5.629081 mm")))
sketch16.addConstraint(Sketcher.Constraint("DistanceY", 1, 3, 0, 1, Q("0.54126 mm")))
sketch16.addConstraint(Sketcher.Constraint("DistanceX", 1, 1, 0, 3, Q("1.126739 mm")))
sketch16.addConstraint(Sketcher.Constraint("DistanceX", 0, 3, -1, 1, Q("10.591343 mm")))
pad16 = doc.addObject("PartDesign::Pad", "Pad015")
body16.addObject(pad16)
pad16.Profile = sketch16
pad16.Length = 4
body17 = doc.addObject("PartDesign::Body", "Body016")

# Sketch on XY plane
sketch17 = doc.addObject("Sketcher::SketchObject", "Sketch016")
body17.addObject(sketch17)
sketch17.AttachmentSupport = (doc.getObject("XY_Plane016"), [""])
sketch17.MapMode = "FlatFace"
sketch17.addGeometry(Part.Circle(App.Vector(-11.1, 3.9, 0), App.Vector(0, 0, 1), 1.2), False)
sketch17.addConstraint(Sketcher.Constraint("Diameter", 0, Q("2.5 mm")))
sketch17.addConstraint(Sketcher.Constraint("DistanceX", 0, 3, -1, 1, Q("11.086845 mm")))
sketch17.addConstraint(Sketcher.Constraint("DistanceY", -1, 1, 0, 3, Q("3.891575 mm")))
pad17 = doc.addObject("PartDesign::Pad", "Pad016")
body17.addObject(pad17)
pad17.Profile = sketch17
pad17.Length = 4
body18 = doc.addObject("PartDesign::Body", "Body017")

# Sketch on XY plane
sketch18 = doc.addObject("Sketcher::SketchObject", "Sketch017")
body18.addObject(sketch18)
sketch18.AttachmentSupport = (doc.getObject("XY_Plane017"), [""])
sketch18.MapMode = "FlatFace"
sketch18.addGeometry(Part.ArcOfCircle(Part.Circle(App.Vector(-11.7, -0.6, 0), App.Vector(0, 0, 1), 1.2), math.radians(3), math.radians(183)), False)
sketch18.addGeometry(Part.ArcOfCircle(Part.Circle(App.Vector(-11.7, -0.6, 0), App.Vector(0, 0, 1), 1.2), math.radians(-177), math.radians(3)), False)
sketch18.addConstraint(Sketcher.Constraint("Tangent", 0, 1, 1, 2))
sketch18.addConstraint(Sketcher.Constraint("Coincident", 1, 1, 0, 2))
sketch18.addConstraint(Sketcher.Constraint("Radius", 0, Q("1.25 mm")))
sketch18.addConstraint(Sketcher.Constraint("DistanceX", 1, 3, 0, 1, Q("1.248101 mm")))
sketch18.addConstraint(Sketcher.Constraint("DistanceX", 1, 1, 0, 3, Q("1.248101 mm")))
sketch18.addConstraint(Sketcher.Constraint("DistanceX", 0, 3, -1, 1, Q("11.732151 mm")))
sketch18.addConstraint(Sketcher.Constraint("DistanceY", 1, 1, -1, 1, Q("0.716279 mm")))
pad18 = doc.addObject("PartDesign::Pad", "Pad017")
body18.addObject(pad18)
pad18.Profile = sketch18
pad18.Length = 4

doc.recompute()
